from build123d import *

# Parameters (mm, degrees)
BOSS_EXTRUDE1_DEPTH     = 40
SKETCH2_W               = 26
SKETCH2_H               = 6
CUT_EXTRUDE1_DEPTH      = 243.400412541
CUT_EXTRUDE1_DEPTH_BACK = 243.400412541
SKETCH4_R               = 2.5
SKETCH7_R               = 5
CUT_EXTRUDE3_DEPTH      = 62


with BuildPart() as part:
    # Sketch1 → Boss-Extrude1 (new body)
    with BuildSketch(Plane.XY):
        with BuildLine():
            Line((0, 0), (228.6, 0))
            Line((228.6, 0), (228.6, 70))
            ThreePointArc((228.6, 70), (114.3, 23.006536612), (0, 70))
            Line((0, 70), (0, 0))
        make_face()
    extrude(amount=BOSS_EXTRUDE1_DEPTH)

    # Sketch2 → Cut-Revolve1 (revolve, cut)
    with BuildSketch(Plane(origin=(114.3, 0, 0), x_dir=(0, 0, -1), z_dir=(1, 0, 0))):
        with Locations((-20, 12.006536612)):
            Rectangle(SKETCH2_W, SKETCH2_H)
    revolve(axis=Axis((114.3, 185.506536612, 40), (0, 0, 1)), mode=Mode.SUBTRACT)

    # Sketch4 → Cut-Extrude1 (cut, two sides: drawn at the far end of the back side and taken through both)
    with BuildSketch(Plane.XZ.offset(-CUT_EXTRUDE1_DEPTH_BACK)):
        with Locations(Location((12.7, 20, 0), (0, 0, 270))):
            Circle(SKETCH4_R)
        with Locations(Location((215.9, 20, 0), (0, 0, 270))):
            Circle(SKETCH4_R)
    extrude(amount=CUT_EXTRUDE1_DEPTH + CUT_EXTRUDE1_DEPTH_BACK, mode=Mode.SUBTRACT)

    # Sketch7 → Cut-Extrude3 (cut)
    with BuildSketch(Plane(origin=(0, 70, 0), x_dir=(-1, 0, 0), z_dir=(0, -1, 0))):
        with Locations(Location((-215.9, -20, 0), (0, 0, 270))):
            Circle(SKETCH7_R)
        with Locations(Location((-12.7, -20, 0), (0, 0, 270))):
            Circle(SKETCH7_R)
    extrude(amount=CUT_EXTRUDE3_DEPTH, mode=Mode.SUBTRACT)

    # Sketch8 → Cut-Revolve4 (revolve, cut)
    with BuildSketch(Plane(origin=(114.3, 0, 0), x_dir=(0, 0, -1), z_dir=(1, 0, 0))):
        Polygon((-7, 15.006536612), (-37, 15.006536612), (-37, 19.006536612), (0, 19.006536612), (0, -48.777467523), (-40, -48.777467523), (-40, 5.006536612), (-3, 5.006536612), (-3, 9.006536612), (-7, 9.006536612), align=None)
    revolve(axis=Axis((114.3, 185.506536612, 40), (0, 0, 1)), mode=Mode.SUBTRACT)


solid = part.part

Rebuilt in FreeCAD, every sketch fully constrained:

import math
import FreeCAD as App
import Part
import Sketcher

V = App.Vector

doc = App.newDocument("Part")
body = doc.addObject("PartDesign::Body", "Body")

sketch1 = body.newObject("Sketcher::SketchObject", "Sketch")
sketch1.AttachmentSupport = (doc.getObject("XY_Plane"), [""])
sketch1.MapMode = "FlatFace"
sketch1.addGeometry(Part.LineSegment(V(0, 0, 0), V(228.6, 0, 0)), False)
sketch1.addGeometry(Part.LineSegment(V(228.6, 0, 0), V(228.6, 70, 0)), False)
sketch1.addGeometry(Part.ArcOfCircle(Part.Circle(V(114.3, 185.506537, 0), V(0, 0, 1), 162.5), math.radians(-134.699187), math.radians(-45.300813)), False)
sketch1.addGeometry(Part.LineSegment(V(0, 70, 0), V(0, 0, 0)), False)
sketch1.addConstraint(Sketcher.Constraint("Coincident", 0, 2, 1, 1))
sketch1.addConstraint(Sketcher.Constraint("Coincident", 1, 2, 2, 2))
sketch1.addConstraint(Sketcher.Constraint("Coincident", 2, 1, 3, 1))
sketch1.addConstraint(Sketcher.Constraint("Coincident", 3, 2, 0, 1))
sketch1.addConstraint(Sketcher.Constraint("Horizontal", 0))
sketch1.addConstraint(Sketcher.Constraint("Vertical", 1))
sketch1.addConstraint(Sketcher.Constraint("Vertical", 3))
sketch1.addConstraint(Sketcher.Constraint("Coincident", 3, 2, -1, 1))
sketch1.addConstraint(Sketcher.Constraint("Horizontal", 1, 2, 2, 1))
sketch1.addConstraint(Sketcher.Constraint("Radius", 2, 162.5))
sketch1.addConstraint(Sketcher.Constraint("DistanceY", 1, 1, 1, 2, 70.0))
sketch1.addConstraint(Sketcher.Constraint("DistanceX", 0, 1, 0, 2, 228.6))
pad1 = body.newObject("PartDesign::Pad", "Pad")
pad1.Profile = sketch1
pad1.Length = 40

sketch2 = body.newObject("Sketcher::SketchObject", "Sketch001")
sketch2.AttachmentSupport = (doc.getObject("YZ_Plane"), [""])
sketch2.MapMode = "FlatFace"
sketch2.AttachmentOffset = App.Placement(V(0, 0, 114.3), App.Rotation())
sketch2.addGeometry(Part.LineSegment(V(15.006537, 33, 0), V(9.006537, 33, 0)), False)
sketch2.addGeometry(Part.LineSegment(V(9.006537, 33, 0), V(9.006537, 7, 0)), False)
sketch2.addGeometry(Part.LineSegment(V(9.006537, 7, 0), V(15.006537, 7, 0)), False)
sketch2.addGeometry(Part.LineSegment(V(15.006537, 7, 0), V(15.006537, 33, 0)), False)
sketch2.addGeometry(Part.LineSegment(V(185.506537, 7, 0), V(185.506537, 33, 0)), True)
sketch2.addConstraint(Sketcher.Constraint("Coincident", 0, 2, 1, 1))
sketch2.addConstraint(Sketcher.Constraint("Coincident", 1, 2, 2, 1))
sketch2.addConstraint(Sketcher.Constraint("Coincident", 2, 2, 3, 1))
sketch2.addConstraint(Sketcher.Constraint("Coincident", 3, 2, 0, 1))
sketch2.addConstraint(Sketcher.Constraint("Horizontal", 0))
sketch2.addConstraint(Sketcher.Constraint("Vertical", 1))
sketch2.addConstraint(Sketcher.Constraint("Horizontal", 2))
sketch2.addConstraint(Sketcher.Constraint("Vertical", 3))
sketch2.addConstraint(Sketcher.Constraint("Vertical", 4))
sketch2.addConstraint(Sketcher.Constraint("Horizontal", 2, 2, 4, 1))
sketch2.addConstraint(Sketcher.Constraint("Horizontal", 3, 2, 4, 2))
sketch2.addConstraint(Sketcher.Constraint("DistanceX", 0, 2, 0, 1, 6.0))
sketch2.addConstraint(Sketcher.Constraint("DistanceY", 1, 2, 1, 1, 26.0))
sketch2.addConstraint(Sketcher.Constraint("DistanceY", -1, 1, 0, 2, 33.0))
sketch2.addConstraint(Sketcher.Constraint("DistanceX", 2, 2, 4, 1, 170.5))
sketch2.addConstraint(Sketcher.Constraint("DistanceX", -1, 1, 0, 2, 9.006537))
groove = body.newObject("PartDesign::Groove", "Groove")
groove.Profile = sketch2
groove.ReferenceAxis = (sketch2, ["Axis0"])
groove.Angle = 360

sketch3 = body.newObject("Sketcher::SketchObject", "Sketch002")
sketch3.AttachmentSupport = (doc.getObject("XZ_Plane"), [""])
sketch3.MapMode = "FlatFace"
sketch3.addGeometry(Part.Circle(V(12.7, 20, 0), V(0, 0, 1), 2.5), False)
sketch3.addGeometry(Part.Circle(V(215.9, 20, 0), V(0, 0, 1), 2.5), False)
sketch3.addConstraint(Sketcher.Constraint("Equal", 0, 1))
sketch3.addConstraint(Sketcher.Constraint("Horizontal", 0, 3, 1, 3))
sketch3.addConstraint(Sketcher.Constraint("Diameter", 0, 5.0))
sketch3.addConstraint(Sketcher.Constraint("DistanceY", -1, 1, 0, 3, 20.0))
sketch3.addConstraint(Sketcher.Constraint("DistanceX", -1, 1, 0, 3, 12.7))
sketch3.addConstraint(Sketcher.Constraint("DistanceX", -1, 1, 1, 3, 215.9))
pocket1 = body.newObject("PartDesign::Pocket", "Pocket")
pocket1.Profile = sketch3
pocket1.Type = "ThroughAll"
pocket1.Midplane = True

sketch4 = body.newObject("Sketcher::SketchObject", "Sketch003")
sketch4.AttachmentSupport = (doc.getObject("XZ_Plane"), [""])
sketch4.MapMode = "FlatFace"
sketch4.AttachmentOffset = App.Placement(V(0, 0, -70), App.Rotation())
sketch4.addGeometry(Part.Circle(V(215.9, 20, 0), V(0, 0, 1), 5), False)
sketch4.addGeometry(Part.Circle(V(12.7, 20, 0), V(0, 0, 1), 5), False)
sketch4.addConstraint(Sketcher.Constraint("Equal", 0, 1))
sketch4.addConstraint(Sketcher.Constraint("Horizontal", 0, 3, 1, 3))
sketch4.addConstraint(Sketcher.Constraint("Diameter", 0, 10.0))
sketch4.addConstraint(Sketcher.Constraint("DistanceY", -1, 1, 0, 3, 20.0))
sketch4.addConstraint(Sketcher.Constraint("DistanceX", -1, 1, 0, 3, 215.9))
sketch4.addConstraint(Sketcher.Constraint("DistanceX", -1, 1, 1, 3, 12.7))
pocket2 = body.newObject("PartDesign::Pocket", "Pocket001")
pocket2.Profile = sketch4
pocket2.Length = 62
pocket2.Reversed = True

sketch5 = body.newObject("Sketcher::SketchObject", "Sketch004")
sketch5.AttachmentSupport = (doc.getObject("YZ_Plane"), [""])
sketch5.MapMode = "FlatFace"
sketch5.AttachmentOffset = App.Placement(V(0, 0, 114.3), App.Rotation())
sketch5.addGeometry(Part.LineSegment(V(15.006537, 37, 0), V(15.006537, 7, 0)), False)
sketch5.addGeometry(Part.LineSegment(V(15.006537, 7, 0), V(9.006537, 7, 0)), False)
sketch5.addGeometry(Part.LineSegment(V(9.006537, 7, 0), V(9.006537, 3, 0)), False)
sketch5.addGeometry(Part.LineSegment(V(9.006537, 3, 0), V(5.006537, 3, 0)), False)
sketch5.addGeometry(Part.LineSegment(V(5.006537, 3, 0), V(5.006537, 40, 0)), False)
sketch5.addGeometry(Part.LineSegment(V(5.006537, 40, 0), V(-48.777468, 40, 0)), False)
sketch5.addGeometry(Part.LineSegment(V(-48.777468, 40, 0), V(-48.777468, 0, 0)), False)
sketch5.addGeometry(Part.LineSegment(V(-48.777468, 0, 0), V(19.006537, 0, 0)), False)
sketch5.addGeometry(Part.LineSegment(V(19.006537, 0, 0), V(19.006537, 37, 0)), False)
sketch5.addGeometry(Part.LineSegment(V(19.006537, 37, 0), V(15.006537, 37, 0)), False)
sketch5.addGeometry(Part.LineSegment(V(185.506537, 0, 0), V(185.506537, 40, 0)), True)
sketch5.addConstraint(Sketcher.Constraint("Coincident", 0, 2, 1, 1))
sketch5.addConstraint(Sketcher.Constraint("Coincident", 1, 2, 2, 1))
sketch5.addConstraint(Sketcher.Constraint("Coincident", 2, 2, 3, 1))
sketch5.addConstraint(Sketcher.Constraint("Coincident", 3, 2, 4, 1))
sketch5.addConstraint(Sketcher.Constraint("Coincident", 4, 2, 5, 1))
sketch5.addConstraint(Sketcher.Constraint("Coincident", 5, 2, 6, 1))
sketch5.addConstraint(Sketcher.Constraint("Coincident", 6, 2, 7, 1))
sketch5.addConstraint(Sketcher.Constraint("Coincident", 7, 2, 8, 1))
sketch5.addConstraint(Sketcher.Constraint("Coincident", 8, 2, 9, 1))
sketch5.addConstraint(Sketcher.Constraint("Coincident", 9, 2, 0, 1))
sketch5.addConstraint(Sketcher.Constraint("Vertical", 0))
sketch5.addConstraint(Sketcher.Constraint("Horizontal", 1))
sketch5.addConstraint(Sketcher.Constraint("Vertical", 2))
sketch5.addConstraint(Sketcher.Constraint("Horizontal", 3))
sketch5.addConstraint(Sketcher.Constraint("Vertical", 4))
sketch5.addConstraint(Sketcher.Constraint("Horizontal", 5))
sketch5.addConstraint(Sketcher.Constraint("Vertical", 6))
sketch5.addConstraint(Sketcher.Constraint("Horizontal", 7))
sketch5.addConstraint(Sketcher.Constraint("Vertical", 8))
sketch5.addConstraint(Sketcher.Constraint("Horizontal", 9))
sketch5.addConstraint(Sketcher.Constraint("Vertical", 10))
sketch5.addConstraint(Sketcher.Constraint("PointOnObject", 6, 2, -1))
sketch5.addConstraint(Sketcher.Constraint("PointOnObject", 10, 1, -1))
sketch5.addConstraint(Sketcher.Constraint("Horizontal", 5, 2, 10, 2))
sketch5.addConstraint(Sketcher.Constraint("Equal", 3, 9))
sketch5.addConstraint(Sketcher.Constraint("Equal", 9, 2))
sketch5.addConstraint(Sketcher.Constraint("Equal", 4, 8))
sketch5.addConstraint(Sketcher.Constraint("DistanceX", 1, 2, 1, 1, 6.0))
sketch5.addConstraint(Sketcher.Constraint("DistanceX", 3, 2, 3, 1, 4.0))
sketch5.addConstraint(Sketcher.Constraint("DistanceY", 0, 2, 0, 1, 30.0))
sketch5.addConstraint(Sketcher.Constraint("DistanceY", 4, 1, 4, 2, 37.0))
sketch5.addConstraint(Sketcher.Constraint("DistanceX", 7, 2, 10, 1, 166.5))
sketch5.addConstraint(Sketcher.Constraint("DistanceX", 5, 2, 5, 1, 53.784004))
sketch5.addConstraint(Sketcher.Constraint("DistanceX", -1, 1, 0, 2, 15.006537))
groove2 = body.newObject("PartDesign::Groove", "Groove001")
groove2.Profile = sketch5
groove2.ReferenceAxis = (sketch5, ["Axis0"])
groove2.Angle = 360

doc.recompute()
